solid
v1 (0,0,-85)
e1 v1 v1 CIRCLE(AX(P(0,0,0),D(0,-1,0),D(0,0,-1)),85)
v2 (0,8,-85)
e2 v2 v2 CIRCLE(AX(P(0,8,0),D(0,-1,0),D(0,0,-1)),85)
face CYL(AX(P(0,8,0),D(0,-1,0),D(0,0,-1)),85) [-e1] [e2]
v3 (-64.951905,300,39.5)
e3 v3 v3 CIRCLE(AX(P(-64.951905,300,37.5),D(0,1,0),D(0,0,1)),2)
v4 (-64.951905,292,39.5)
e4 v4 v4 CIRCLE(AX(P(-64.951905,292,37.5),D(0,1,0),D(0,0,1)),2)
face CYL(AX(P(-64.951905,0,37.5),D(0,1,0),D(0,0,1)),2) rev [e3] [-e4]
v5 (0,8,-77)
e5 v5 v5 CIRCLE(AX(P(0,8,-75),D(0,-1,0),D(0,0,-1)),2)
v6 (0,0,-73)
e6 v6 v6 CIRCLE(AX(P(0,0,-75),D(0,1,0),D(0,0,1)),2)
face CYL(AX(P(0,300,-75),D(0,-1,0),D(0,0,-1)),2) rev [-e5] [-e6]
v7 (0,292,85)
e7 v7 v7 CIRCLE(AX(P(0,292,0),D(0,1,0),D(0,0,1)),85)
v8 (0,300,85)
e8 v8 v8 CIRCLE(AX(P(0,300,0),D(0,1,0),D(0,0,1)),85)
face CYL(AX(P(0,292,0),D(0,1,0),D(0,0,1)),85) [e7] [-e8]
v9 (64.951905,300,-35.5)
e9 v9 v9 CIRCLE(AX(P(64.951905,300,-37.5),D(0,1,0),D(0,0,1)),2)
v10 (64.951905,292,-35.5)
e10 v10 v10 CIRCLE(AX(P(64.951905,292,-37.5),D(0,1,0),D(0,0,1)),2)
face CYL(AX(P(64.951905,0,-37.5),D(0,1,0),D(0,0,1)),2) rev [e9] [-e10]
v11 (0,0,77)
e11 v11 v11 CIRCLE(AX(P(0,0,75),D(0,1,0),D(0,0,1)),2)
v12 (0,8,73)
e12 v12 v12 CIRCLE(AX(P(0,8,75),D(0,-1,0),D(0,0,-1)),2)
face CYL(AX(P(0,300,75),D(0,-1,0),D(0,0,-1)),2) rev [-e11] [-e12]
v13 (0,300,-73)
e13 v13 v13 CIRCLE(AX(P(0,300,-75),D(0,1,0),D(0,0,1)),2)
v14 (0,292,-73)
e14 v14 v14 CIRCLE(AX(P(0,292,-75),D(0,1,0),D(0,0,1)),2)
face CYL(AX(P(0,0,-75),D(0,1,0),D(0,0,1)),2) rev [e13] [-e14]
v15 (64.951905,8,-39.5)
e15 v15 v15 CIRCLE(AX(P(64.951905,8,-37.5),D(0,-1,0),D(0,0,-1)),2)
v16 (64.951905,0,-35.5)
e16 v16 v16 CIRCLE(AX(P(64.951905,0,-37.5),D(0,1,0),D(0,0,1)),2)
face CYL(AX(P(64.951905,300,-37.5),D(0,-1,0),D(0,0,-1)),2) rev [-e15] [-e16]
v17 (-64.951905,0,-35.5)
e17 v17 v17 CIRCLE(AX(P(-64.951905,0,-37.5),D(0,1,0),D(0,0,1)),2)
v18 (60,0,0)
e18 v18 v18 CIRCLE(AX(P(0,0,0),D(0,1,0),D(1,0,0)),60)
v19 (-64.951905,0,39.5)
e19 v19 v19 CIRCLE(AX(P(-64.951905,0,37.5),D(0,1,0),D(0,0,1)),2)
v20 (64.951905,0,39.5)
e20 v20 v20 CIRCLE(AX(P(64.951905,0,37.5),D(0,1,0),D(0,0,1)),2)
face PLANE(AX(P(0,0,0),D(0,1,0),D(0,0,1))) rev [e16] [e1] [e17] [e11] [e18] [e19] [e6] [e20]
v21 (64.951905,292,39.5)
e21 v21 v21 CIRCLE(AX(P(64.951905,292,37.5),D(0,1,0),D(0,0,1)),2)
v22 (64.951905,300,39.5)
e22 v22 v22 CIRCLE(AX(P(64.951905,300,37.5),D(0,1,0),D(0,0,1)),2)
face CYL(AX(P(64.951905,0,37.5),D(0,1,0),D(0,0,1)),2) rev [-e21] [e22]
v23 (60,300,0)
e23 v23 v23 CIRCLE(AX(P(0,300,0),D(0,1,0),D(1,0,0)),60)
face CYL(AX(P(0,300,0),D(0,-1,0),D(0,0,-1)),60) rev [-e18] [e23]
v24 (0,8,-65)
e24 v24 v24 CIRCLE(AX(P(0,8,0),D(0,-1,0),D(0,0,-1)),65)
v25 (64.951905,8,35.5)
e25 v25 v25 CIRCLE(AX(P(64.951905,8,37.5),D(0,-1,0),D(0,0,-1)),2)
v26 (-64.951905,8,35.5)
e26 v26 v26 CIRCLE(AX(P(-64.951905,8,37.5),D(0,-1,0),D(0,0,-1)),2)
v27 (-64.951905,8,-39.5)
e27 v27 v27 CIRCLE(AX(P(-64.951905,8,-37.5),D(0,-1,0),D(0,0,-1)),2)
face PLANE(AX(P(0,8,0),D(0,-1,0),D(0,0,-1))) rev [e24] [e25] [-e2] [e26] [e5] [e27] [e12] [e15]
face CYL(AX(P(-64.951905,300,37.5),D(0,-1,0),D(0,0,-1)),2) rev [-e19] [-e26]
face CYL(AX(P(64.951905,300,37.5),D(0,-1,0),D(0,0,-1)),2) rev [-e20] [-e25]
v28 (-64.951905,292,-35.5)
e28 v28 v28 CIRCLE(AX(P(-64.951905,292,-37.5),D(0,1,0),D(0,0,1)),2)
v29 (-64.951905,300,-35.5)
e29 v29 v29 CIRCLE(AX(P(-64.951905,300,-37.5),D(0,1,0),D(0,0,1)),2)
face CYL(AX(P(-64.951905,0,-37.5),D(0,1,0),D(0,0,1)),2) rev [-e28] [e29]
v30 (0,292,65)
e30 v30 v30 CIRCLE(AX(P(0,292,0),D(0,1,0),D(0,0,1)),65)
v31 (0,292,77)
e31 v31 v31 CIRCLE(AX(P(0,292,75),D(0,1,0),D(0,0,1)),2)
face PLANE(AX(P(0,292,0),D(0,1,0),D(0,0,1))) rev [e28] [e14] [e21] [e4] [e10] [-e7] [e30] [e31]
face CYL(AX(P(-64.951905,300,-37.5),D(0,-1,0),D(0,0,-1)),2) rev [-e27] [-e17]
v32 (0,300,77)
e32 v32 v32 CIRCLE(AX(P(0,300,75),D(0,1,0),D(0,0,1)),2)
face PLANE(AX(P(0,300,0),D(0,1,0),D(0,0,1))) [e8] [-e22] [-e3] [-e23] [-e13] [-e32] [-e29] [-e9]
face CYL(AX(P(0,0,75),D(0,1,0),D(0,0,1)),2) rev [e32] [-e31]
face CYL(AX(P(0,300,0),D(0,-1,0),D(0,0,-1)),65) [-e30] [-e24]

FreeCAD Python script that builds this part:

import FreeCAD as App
import Part
import Sketcher

V = App.Vector
Q = App.Units.Quantity

doc = App.newDocument("Part")
params = doc.addObject("Spreadsheet::Sheet", "Params")
for row, (alias, value) in enumerate([
    ("sketch1_diameter", "130 mm"),
    ("sketch1_diameter2", "120 mm"),
    ("pad1_length", "300 mm"),
    ("sketch2_diameter", "170 mm"),
    ("sketch2_diameter2", "130 mm"),
    ("pad2_length", "8 mm"),
    ("sketch3_diameter", "4 mm"),
    ("sketch4_diameter", "170 mm"),
    ("sketch4_diameter2", "130 mm"),
    ("pad3_length", "8 mm"),
    ("sketch5_diameter", "4 mm"),
], start=1):
    params.set(f"A{row}", alias)
    params.set(f"B{row}", "=" + value)
    params.setAlias(f"B{row}", alias)

body = doc.addObject("PartDesign::Body", "Body")

# Sketch on XZ plane
sketch1 = doc.addObject("Sketcher::SketchObject", "Sketch")
body.addObject(sketch1)
sketch1.AttachmentSupport = (doc.XZ_Plane, [""])
sketch1.MapMode = "FlatFace"
sketch1.addGeometry(Part.Circle(V(0, 0, 0), V(0, 0, 1), 65), False)
sketch1.addGeometry(Part.Circle(V(0, 0, 0), V(0, 0, 1), 60), False)
sketch1.addConstraint(Sketcher.Constraint("Coincident", 0, 3, -1, 1))
sketch1.addConstraint(Sketcher.Constraint("Coincident", 1, 3, -1, 1))
sketch1.addConstraint(Sketcher.Constraint("Diameter", 0, Q("130 mm")))
sketch1.addConstraint(Sketcher.Constraint("Diameter", 1, Q("120 mm")))
sketch1.setExpression("Constraints[2]", "Params.sketch1_diameter")
sketch1.setExpression("Constraints[3]", "Params.sketch1_diameter2")
pad1 = doc.addObject("PartDesign::Pad", "Pad")
body.addObject(pad1)
pad1.Profile = sketch1
pad1.setExpression("Length", "Params.pad1_length")
pad1.Reversed = True

# Sketch on XZ plane
sketch2 = doc.addObject("Sketcher::SketchObject", "Sketch001")
body.addObject(sketch2)
sketch2.AttachmentSupport = (doc.XZ_Plane, [""])
sketch2.MapMode = "FlatFace"
sketch2.AttachmentOffset = App.Placement(V(0, 0, -300), App.Rotation())
sketch2.addGeometry(Part.Circle(V(0, 0, 0), V(0, 0, 1), 85), False)
sketch2.addGeometry(Part.Circle(V(0, 0, 0), V(0, 0, 1), 65), False)
sketch2.addConstraint(Sketcher.Constraint("Coincident", 0, 3, -1, 1))
sketch2.addConstraint(Sketcher.Constraint("Coincident", 1, 3, -1, 1))
sketch2.addConstraint(Sketcher.Constraint("Diameter", 0, Q("170 mm")))
sketch2.addConstraint(Sketcher.Constraint("Diameter", 1, Q("130 mm")))
sketch2.setExpression("Constraints[2]", "Params.sketch2_diameter")
sketch2.setExpression("Constraints[3]", "Params.sketch2_diameter2")
pad2 = doc.addObject("PartDesign::Pad", "Pad001")
body.addObject(pad2)
pad2.Profile = sketch2
pad2.setExpression("Length", "Params.pad2_length")

# Sketch on XZ plane
sketch3 = doc.addObject("Sketcher::SketchObject", "Sketch002")
body.addObject(sketch3)
sketch3.AttachmentSupport = (doc.XZ_Plane, [""])
sketch3.MapMode = "FlatFace"
sketch3.AttachmentOffset = App.Placement(V(0, 0, -300), App.Rotation())
sketch3.addGeometry(Part.Circle(V(0, -75, 0), V(0, 0, 1), 2), False)
sketch3.addGeometry(Part.Circle(V(64.951905, -37.5, 0), V(0, 0, 1), 2), False)
sketch3.addGeometry(Part.Circle(V(64.951905, 37.5, 0), V(0, 0, 1), 2), False)
sketch3.addGeometry(Part.Circle(V(0, 75, 0), V(0, 0, 1), 2), False)
sketch3.addGeometry(Part.Circle(V(-64.951905, 37.5, 0), V(0, 0, 1), 2), False)
sketch3.addGeometry(Part.Circle(V(-64.951905, -37.5, 0), V(0, 0, 1), 2), False)
sketch3.addConstraint(Sketcher.Constraint("Equal", 0, 1))
sketch3.addConstraint(Sketcher.Constraint("Equal", 1, 2))
sketch3.addConstraint(Sketcher.Constraint("Equal", 2, 3))
sketch3.addConstraint(Sketcher.Constraint("Equal", 3, 4))
sketch3.addConstraint(Sketcher.Constraint("Equal", 4, 5))
sketch3.addConstraint(Sketcher.Constraint("Symmetric", 0, 3, 3, 3, -1, 1))
sketch3.addConstraint(Sketcher.Constraint("Symmetric", 1, 3, 4, 3, -1, 1))
sketch3.addConstraint(Sketcher.Constraint("Symmetric", 2, 3, 5, 3, -1, 1))
sketch3.addConstraint(Sketcher.Constraint("Symmetric", 2, 3, 4, 3, -2))
sketch3.addConstraint(Sketcher.Constraint("PointOnObject", 0, 3, -2))
sketch3.addConstraint(Sketcher.Constraint("Diameter", 0, Q("4 mm")))
sketch3.addConstraint(Sketcher.Constraint("DistanceY", 0, 3, -1, 1, Q("75 mm")))
sketch3.addConstraint(Sketcher.Constraint("DistanceY", 1, 3, 2, 3, Q("75 mm")))
sketch3.addConstraint(Sketcher.Constraint("DistanceX", 4, 3, 2, 3, Q("129.903811 mm")))
sketch3.setExpression("Constraints[10]", "Params.sketch3_diameter")
pocket1 = doc.addObject("PartDesign::Pocket", "Pocket")
body.addObject(pocket1)
pocket1.Profile = sketch3
pocket1.Type = "ThroughAll"
pocket1.Reversed = True

# Sketch on XZ plane
sketch4 = doc.addObject("Sketcher::SketchObject", "Sketch003")
body.addObject(sketch4)
sketch4.AttachmentSupport = (doc.XZ_Plane, [""])
sketch4.MapMode = "FlatFace"
sketch4.addGeometry(Part.Circle(V(0, 0, 0), V(0, 0, 1), 85), False)
sketch4.addGeometry(Part.Circle(V(0, 0, 0), V(0, 0, 1), 65), False)
sketch4.addConstraint(Sketcher.Constraint("Coincident", 0, 3, -1, 1))
sketch4.addConstraint(Sketcher.Constraint("Coincident", 1, 3, -1, 1))
sketch4.addConstraint(Sketcher.Constraint("Diameter", 0, Q("170 mm")))
sketch4.addConstraint(Sketcher.Constraint("Diameter", 1, Q("130 mm")))
sketch4.setExpression("Constraints[2]", "Params.sketch4_diameter")
sketch4.setExpression("Constraints[3]", "Params.sketch4_diameter2")
pad3 = doc.addObject("PartDesign::Pad", "Pad002")
body.addObject(pad3)
pad3.Profile = sketch4
pad3.setExpression("Length", "Params.pad3_length")
pad3.Reversed = True

# Sketch on XZ plane
sketch5 = doc.addObject("Sketcher::SketchObject", "Sketch004")
body.addObject(sketch5)
sketch5.AttachmentSupport = (doc.XZ_Plane, [""])
sketch5.MapMode = "FlatFace"
sketch5.addGeometry(Part.Circle(V(0, 75, 0), V(0, 0, 1), 2), False)
sketch5.addGeometry(Part.Circle(V(64.951905, 37.5, 0), V(0, 0, 1), 2), False)
sketch5.addGeometry(Part.Circle(V(64.951905, -37.5, 0), V(0, 0, 1), 2), False)
sketch5.addGeometry(Part.Circle(V(0, -75, 0), V(0, 0, 1), 2), False)
sketch5.addGeometry(Part.Circle(V(-64.951905, -37.5, 0), V(0, 0, 1), 2), False)
sketch5.addGeometry(Part.Circle(V(-64.951905, 37.5, 0), V(0, 0, 1), 2), False)
sketch5.addConstraint(Sketcher.Constraint("Equal", 0, 1))
sketch5.addConstraint(Sketcher.Constraint("Equal", 1, 2))
sketch5.addConstraint(Sketcher.Constraint("Equal", 2, 3))
sketch5.addConstraint(Sketcher.Constraint("Equal", 3, 4))
sketch5.addConstraint(Sketcher.Constraint("Equal", 4, 5))
sketch5.addConstraint(Sketcher.Constraint("Symmetric", 0, 3, 3, 3, -1, 1))
sketch5.addConstraint(Sketcher.Constraint("Symmetric", 1, 3, 4, 3, -1, 1))
sketch5.addConstraint(Sketcher.Constraint("Symmetric", 2, 3, 5, 3, -1, 1))
sketch5.addConstraint(Sketcher.Constraint("Symmetric", 2, 3, 4, 3, -2))
sketch5.addConstraint(Sketcher.Constraint("PointOnObject", 0, 3, -2))
sketch5.addConstraint(Sketcher.Constraint("Diameter", 0, Q("4 mm")))
sketch5.addConstraint(Sketcher.Constraint("DistanceY", -1, 1, 0, 3, Q("75 mm")))
sketch5.addConstraint(Sketcher.Constraint("DistanceY", 2, 3, 1, 3, Q("75 mm")))
sketch5.addConstraint(Sketcher.Constraint("DistanceX", 4, 3, 2, 3, Q("129.903811 mm")))
sketch5.setExpression("Constraints[10]", "Params.sketch5_diameter")
pocket2 = doc.addObject("PartDesign::Pocket", "Pocket001")
body.addObject(pocket2)
pocket2.Profile = sketch5
pocket2.Type = "ThroughAll"
pocket2.Midplane = True

doc.recompute()
